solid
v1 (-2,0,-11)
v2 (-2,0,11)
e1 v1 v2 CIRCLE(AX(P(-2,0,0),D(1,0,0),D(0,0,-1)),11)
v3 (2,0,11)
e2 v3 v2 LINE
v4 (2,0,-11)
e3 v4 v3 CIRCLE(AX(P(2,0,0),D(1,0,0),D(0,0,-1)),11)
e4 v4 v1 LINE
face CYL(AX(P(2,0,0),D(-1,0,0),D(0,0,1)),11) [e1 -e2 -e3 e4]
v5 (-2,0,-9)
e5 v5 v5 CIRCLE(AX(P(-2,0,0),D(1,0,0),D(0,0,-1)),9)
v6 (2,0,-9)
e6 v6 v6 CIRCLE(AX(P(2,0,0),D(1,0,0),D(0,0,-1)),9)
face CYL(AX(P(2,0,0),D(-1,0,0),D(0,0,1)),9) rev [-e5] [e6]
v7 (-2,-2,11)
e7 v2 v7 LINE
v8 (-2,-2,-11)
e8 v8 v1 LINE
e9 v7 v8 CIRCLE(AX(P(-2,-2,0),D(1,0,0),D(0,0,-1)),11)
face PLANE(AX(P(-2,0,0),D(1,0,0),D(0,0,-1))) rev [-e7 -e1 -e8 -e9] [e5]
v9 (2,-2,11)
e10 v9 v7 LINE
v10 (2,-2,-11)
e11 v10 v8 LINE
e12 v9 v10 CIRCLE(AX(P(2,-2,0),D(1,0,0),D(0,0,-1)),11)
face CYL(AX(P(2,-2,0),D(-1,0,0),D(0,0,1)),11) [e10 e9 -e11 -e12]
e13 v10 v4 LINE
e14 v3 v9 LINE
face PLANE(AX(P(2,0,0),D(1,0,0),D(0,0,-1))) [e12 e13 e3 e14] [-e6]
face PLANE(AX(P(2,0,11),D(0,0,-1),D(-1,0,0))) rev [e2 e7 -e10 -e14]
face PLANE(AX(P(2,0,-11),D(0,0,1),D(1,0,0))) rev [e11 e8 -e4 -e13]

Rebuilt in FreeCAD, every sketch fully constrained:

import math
import FreeCAD as App
import Part
import Sketcher
from FreeCAD import Vector

doc = App.newDocument("Part")
params = doc.addObject("Spreadsheet::Sheet", "Params")
for row, (alias, value) in enumerate([
    ("sketch1_diameter", "18 mm"),
    ("sketch1_radius", "11 mm"),
    ("sketch1_width", "2 mm"),
    ("pad1_length", "4 mm"),
], start=1):
    params.set(f"A{row}", alias)
    params.set(f"B{row}", "=" + value)
    params.setAlias(f"B{row}", alias)

body = doc.addObject("PartDesign::Body", "Body")

# Sketch on YZ plane
sketch1 = body.newObject("Sketcher::SketchObject", "Sketch")
sketch1.AttachmentSupport = (doc.getObject("YZ_Plane"), [""])
sketch1.MapMode = "FlatFace"
sketch1.addGeometry([
    Part.LineSegment(Vector(0, 11, 0), Vector(-2, 11, 0)),  # 0
    Part.ArcOfCircle(Part.Circle(Vector(-2, 0, 0), Vector(0, 0, 1), 11), math.radians(90), math.radians(270)),  # 1
    Part.LineSegment(Vector(-2, -11, 0), Vector(0, -11, 0)),  # 2
    Part.ArcOfCircle(Part.Circle(Vector(0, 0, 0), Vector(0, 0, 1), 11), math.radians(-90), math.radians(90)),  # 3
    Part.Circle(Vector(0, 0, 0), Vector(0, 0, 1), 9),  # 4
], False)
sketch1.addConstraint([
    Sketcher.Constraint("Tangent", 0, 2, 1, 1),
    Sketcher.Constraint("Tangent", 1, 2, 2, 1),
    Sketcher.Constraint("Tangent", 2, 2, 3, 1),
    Sketcher.Constraint("Tangent", 3, 2, 0, 1),
    Sketcher.Constraint("Horizontal", 0),
    Sketcher.Constraint("Horizontal", 2),
    Sketcher.Constraint("Coincident", 3, 3, -1, 1),
    Sketcher.Constraint("Coincident", 4, 3, -1, 1),
    Sketcher.Constraint("Diameter", 4, 18.0),
    Sketcher.Constraint("Radius", 1, 11.0),
    Sketcher.Constraint("DistanceX", 0, 2, 0, 1, 2.0),
])
sketch1.setExpression("Constraints[8]", "Params.sketch1_diameter")
sketch1.setExpression("Constraints[9]", "Params.sketch1_radius")
sketch1.setExpression("Constraints[10]", "Params.sketch1_width")
pad1 = body.newObject("PartDesign::Pad", "Pad")
pad1.Profile = sketch1
pad1.setExpression("Length", "Params.pad1_length")
pad1.Midplane = True

doc.recompute()
